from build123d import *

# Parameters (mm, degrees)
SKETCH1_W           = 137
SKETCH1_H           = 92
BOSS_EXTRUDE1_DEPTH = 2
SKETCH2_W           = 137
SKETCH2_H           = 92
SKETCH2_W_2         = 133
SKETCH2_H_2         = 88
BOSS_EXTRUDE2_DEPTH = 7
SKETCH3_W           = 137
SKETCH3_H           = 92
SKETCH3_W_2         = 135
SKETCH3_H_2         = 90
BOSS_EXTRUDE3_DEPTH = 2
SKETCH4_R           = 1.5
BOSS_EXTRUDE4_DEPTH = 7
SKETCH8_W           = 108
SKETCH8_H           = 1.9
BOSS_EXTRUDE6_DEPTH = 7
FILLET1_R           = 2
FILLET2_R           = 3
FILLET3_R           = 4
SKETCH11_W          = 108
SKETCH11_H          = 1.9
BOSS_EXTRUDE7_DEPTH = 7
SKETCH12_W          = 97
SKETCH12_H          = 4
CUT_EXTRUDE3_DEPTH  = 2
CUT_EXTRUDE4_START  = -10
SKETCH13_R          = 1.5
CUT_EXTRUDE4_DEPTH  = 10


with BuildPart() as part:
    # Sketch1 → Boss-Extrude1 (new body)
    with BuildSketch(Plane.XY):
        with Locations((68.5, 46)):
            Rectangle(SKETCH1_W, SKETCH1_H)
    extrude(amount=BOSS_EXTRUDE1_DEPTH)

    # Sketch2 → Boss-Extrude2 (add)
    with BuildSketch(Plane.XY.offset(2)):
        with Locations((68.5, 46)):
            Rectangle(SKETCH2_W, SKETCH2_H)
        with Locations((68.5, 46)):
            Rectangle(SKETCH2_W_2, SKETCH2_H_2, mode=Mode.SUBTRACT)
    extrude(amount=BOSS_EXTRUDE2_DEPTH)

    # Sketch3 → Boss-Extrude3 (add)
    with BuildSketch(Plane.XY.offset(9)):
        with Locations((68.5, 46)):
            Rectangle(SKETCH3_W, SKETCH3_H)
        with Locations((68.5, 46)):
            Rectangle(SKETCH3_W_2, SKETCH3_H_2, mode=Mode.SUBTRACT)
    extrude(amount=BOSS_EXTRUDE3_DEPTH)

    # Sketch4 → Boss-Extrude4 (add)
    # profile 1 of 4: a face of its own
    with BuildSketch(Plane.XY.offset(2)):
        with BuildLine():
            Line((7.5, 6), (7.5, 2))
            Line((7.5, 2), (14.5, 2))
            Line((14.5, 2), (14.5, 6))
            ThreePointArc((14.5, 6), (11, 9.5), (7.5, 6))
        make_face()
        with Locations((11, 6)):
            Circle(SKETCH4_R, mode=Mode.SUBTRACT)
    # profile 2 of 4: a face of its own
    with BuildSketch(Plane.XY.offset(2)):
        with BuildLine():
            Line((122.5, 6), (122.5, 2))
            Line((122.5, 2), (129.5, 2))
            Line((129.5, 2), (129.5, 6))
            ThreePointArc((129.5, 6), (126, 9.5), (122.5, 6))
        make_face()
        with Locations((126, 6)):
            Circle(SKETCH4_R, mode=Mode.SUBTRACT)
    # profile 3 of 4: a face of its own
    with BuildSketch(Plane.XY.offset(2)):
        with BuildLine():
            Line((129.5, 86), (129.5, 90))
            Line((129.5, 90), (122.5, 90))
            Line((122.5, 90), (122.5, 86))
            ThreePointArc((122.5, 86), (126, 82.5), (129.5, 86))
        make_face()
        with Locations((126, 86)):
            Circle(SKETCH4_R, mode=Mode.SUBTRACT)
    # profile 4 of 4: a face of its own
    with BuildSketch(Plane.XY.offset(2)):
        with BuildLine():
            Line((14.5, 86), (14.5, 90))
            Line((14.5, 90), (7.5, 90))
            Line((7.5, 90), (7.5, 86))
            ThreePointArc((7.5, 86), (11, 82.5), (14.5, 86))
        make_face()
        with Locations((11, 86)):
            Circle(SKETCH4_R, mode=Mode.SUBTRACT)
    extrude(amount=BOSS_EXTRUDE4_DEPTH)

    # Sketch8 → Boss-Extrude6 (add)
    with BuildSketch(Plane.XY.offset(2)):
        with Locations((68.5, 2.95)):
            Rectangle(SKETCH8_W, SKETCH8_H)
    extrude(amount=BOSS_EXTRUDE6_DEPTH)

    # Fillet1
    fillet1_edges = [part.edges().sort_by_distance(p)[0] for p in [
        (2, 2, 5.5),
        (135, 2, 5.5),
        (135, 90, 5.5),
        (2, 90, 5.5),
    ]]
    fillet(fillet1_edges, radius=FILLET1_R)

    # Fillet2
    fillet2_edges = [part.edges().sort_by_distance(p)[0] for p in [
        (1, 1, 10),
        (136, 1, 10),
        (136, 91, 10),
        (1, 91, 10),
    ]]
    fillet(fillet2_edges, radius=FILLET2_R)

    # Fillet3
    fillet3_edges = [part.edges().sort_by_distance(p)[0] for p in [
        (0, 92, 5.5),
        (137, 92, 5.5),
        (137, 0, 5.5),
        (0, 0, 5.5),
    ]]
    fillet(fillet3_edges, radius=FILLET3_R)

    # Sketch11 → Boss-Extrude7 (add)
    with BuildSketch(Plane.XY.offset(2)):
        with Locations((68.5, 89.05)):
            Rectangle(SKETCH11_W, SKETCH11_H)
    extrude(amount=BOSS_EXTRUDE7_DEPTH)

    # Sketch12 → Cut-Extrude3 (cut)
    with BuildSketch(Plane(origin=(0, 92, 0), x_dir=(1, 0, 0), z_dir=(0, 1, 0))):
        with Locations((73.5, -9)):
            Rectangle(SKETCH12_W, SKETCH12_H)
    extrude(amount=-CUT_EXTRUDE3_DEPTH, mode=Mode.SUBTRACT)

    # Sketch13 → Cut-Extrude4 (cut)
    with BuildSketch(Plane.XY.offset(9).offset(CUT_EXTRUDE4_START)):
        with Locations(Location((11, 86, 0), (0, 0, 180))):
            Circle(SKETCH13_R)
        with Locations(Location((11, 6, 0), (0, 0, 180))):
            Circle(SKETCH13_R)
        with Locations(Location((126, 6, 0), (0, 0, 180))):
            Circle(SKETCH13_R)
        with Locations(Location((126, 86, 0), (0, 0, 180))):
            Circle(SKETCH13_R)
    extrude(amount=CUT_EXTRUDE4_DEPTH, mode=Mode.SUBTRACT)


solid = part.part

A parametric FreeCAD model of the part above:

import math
import FreeCAD as App
import Part
import Sketcher


def edges_at(feature, points):
    """Names of the edges that pass closest to the given points."""
    edges = feature.Shape.Edges
    near = lambda p: min(range(len(edges)), key=lambda i: edges[i].distToShape(Part.Vertex(*p))[0])
    return sorted({f"Edge{near(p) + 1}" for p in points})


def add_polygon(sketch, points):
    """Adds a closed chain of lines whose ends are joined by coincident constraints."""
    first, n = sketch.GeometryCount, len(points)
    for a, b in zip(points, points[1:] + points[:1]):
        sketch.addGeometry(Part.LineSegment(App.Vector(*a, 0), App.Vector(*b, 0)), False)
    for i in range(n):
        sketch.addConstraint(Sketcher.Constraint("Coincident", first + i, 2, first + (i + 1) % n, 1))

doc = App.newDocument("Part")
body = doc.addObject("PartDesign::Body", "Body")

sketch1 = body.newObject("Sketcher::SketchObject", "Sketch")
sketch1.AttachmentSupport = (doc.getObject("XY_Plane"), [""])
sketch1.MapMode = "FlatFace"
add_polygon(sketch1, [(0, 92), (0, 0), (137, 0), (137, 92)])
sketch1.addConstraint([
    Sketcher.Constraint("Vertical", 0),
    Sketcher.Constraint("Horizontal", 1),
    Sketcher.Constraint("Vertical", 2),
    Sketcher.Constraint("Horizontal", 3),
    Sketcher.Constraint("Coincident", 0, 2, -1, 1),
    Sketcher.Constraint("DistanceX", 1, 1, 1, 2, 137.0),
    Sketcher.Constraint("DistanceY", 0, 2, 0, 1, 92.0),
])
pad1 = body.newObject("PartDesign::Pad", "Pad")
pad1.Profile = sketch1
pad1.Length = 2

sketch2 = body.newObject("Sketcher::SketchObject", "Sketch001")
sketch2.AttachmentSupport = (doc.getObject("XY_Plane"), [""])
sketch2.MapMode = "FlatFace"
sketch2.AttachmentOffset = App.Placement(App.Vector(0, 0, 2), App.Rotation())
add_polygon(sketch2, [(0, 92), (0, 0), (137, 0), (137, 92)])
add_polygon(sketch2, [(135, 2), (2, 2), (2, 90), (135, 90)])
sketch2.addConstraint([
    Sketcher.Constraint("Vertical", 0),
    Sketcher.Constraint("Horizontal", 1),
    Sketcher.Constraint("Vertical", 2),
    Sketcher.Constraint("Horizontal", 3),
    Sketcher.Constraint("Horizontal", 4),
    Sketcher.Constraint("Vertical", 5),
    Sketcher.Constraint("Horizontal", 6),
    Sketcher.Constraint("Vertical", 7),
    Sketcher.Constraint("Coincident", 0, 2, -1, 1),
    Sketcher.Constraint("DistanceX", 1, 1, 1, 2, 137.0),
    Sketcher.Constraint("DistanceX", 4, 2, 4, 1, 133.0),
    Sketcher.Constraint("DistanceY", 0, 2, 0, 1, 92.0),
    Sketcher.Constraint("DistanceY", 5, 1, 5, 2, 88.0),
    Sketcher.Constraint("DistanceX", -1, 1, 4, 2, 2.0),
    Sketcher.Constraint("DistanceY", -1, 1, 4, 2, 2.0),
])
pad2 = body.newObject("PartDesign::Pad", "Pad001")
pad2.Profile = sketch2
pad2.Length = 7

sketch3 = body.newObject("Sketcher::SketchObject", "Sketch002")
sketch3.AttachmentSupport = (doc.getObject("XY_Plane"), [""])
sketch3.MapMode = "FlatFace"
sketch3.AttachmentOffset = App.Placement(App.Vector(0, 0, 9), App.Rotation())
add_polygon(sketch3, [(0, 92), (0, 0), (137, 0), (137, 92)])
add_polygon(sketch3, [(136, 1), (1, 1), (1, 91), (136, 91)])
sketch3.addConstraint([
    Sketcher.Constraint("Vertical", 0),
    Sketcher.Constraint("Horizontal", 1),
    Sketcher.Constraint("Vertical", 2),
    Sketcher.Constraint("Horizontal", 3),
    Sketcher.Constraint("Horizontal", 4),
    Sketcher.Constraint("Vertical", 5),
    Sketcher.Constraint("Horizontal", 6),
    Sketcher.Constraint("Vertical", 7),
    Sketcher.Constraint("Coincident", 0, 2, -1, 1),
    Sketcher.Constraint("DistanceX", 1, 1, 1, 2, 137.0),
    Sketcher.Constraint("DistanceX", 4, 2, 4, 1, 135.0),
    Sketcher.Constraint("DistanceY", 0, 2, 0, 1, 92.0),
    Sketcher.Constraint("DistanceY", 5, 1, 5, 2, 90.0),
    Sketcher.Constraint("DistanceX", -1, 1, 4, 2, 1.0),
    Sketcher.Constraint("DistanceY", -1, 1, 4, 2, 1.0),
])
pad3 = body.newObject("PartDesign::Pad", "Pad002")
pad3.Profile = sketch3
pad3.Length = 2

sketch4 = body.newObject("Sketcher::SketchObject", "Sketch003")
sketch4.AttachmentSupport = (doc.getObject("XY_Plane"), [""])
sketch4.MapMode = "FlatFace"
sketch4.AttachmentOffset = App.Placement(App.Vector(0, 0, 2), App.Rotation())
sketch4.addGeometry([
    Part.LineSegment(App.Vector(7.5, 6, 0), App.Vector(7.5, 2, 0)),
    Part.LineSegment(App.Vector(7.5, 2, 0), App.Vector(14.5, 2, 0)),
    Part.LineSegment(App.Vector(14.5, 2, 0), App.Vector(14.5, 6, 0)),
    Part.ArcOfCircle(Part.Circle(App.Vector(11, 6, 0), App.Vector(0, 0, 1), 3.5), math.radians(0), math.radians(180)),
    Part.Circle(App.Vector(11, 6, 0), App.Vector(0, 0, 1), 1.5),
    Part.LineSegment(App.Vector(122.5, 6, 0), App.Vector(122.5, 2, 0)),
    Part.LineSegment(App.Vector(122.5, 2, 0), App.Vector(129.5, 2, 0)),
    Part.LineSegment(App.Vector(129.5, 2, 0), App.Vector(129.5, 6, 0)),
    Part.ArcOfCircle(Part.Circle(App.Vector(126, 6, 0), App.Vector(0, 0, 1), 3.5), math.radians(0), math.radians(180)),
    Part.Circle(App.Vector(126, 6, 0), App.Vector(0, 0, 1), 1.5),
    Part.LineSegment(App.Vector(129.5, 86, 0), App.Vector(129.5, 90, 0)),
    Part.LineSegment(App.Vector(129.5, 90, 0), App.Vector(122.5, 90, 0)),
    Part.LineSegment(App.Vector(122.5, 90, 0), App.Vector(122.5, 86, 0)),
    Part.ArcOfCircle(Part.Circle(App.Vector(126, 86, 0), App.Vector(0, 0, 1), 3.5), math.radians(180), math.radians(360)),
    Part.Circle(App.Vector(126, 86, 0), App.Vector(0, 0, 1), 1.5),
    Part.LineSegment(App.Vector(14.5, 86, 0), App.Vector(14.5, 90, 0)),
    Part.LineSegment(App.Vector(14.5, 90, 0), App.Vector(7.5, 90, 0)),
    Part.LineSegment(App.Vector(7.5, 90, 0), App.Vector(7.5, 86, 0)),
    Part.ArcOfCircle(Part.Circle(App.Vector(11, 86, 0), App.Vector(0, 0, 1), 3.5), math.radians(180), math.radians(360)),
    Part.Circle(App.Vector(11, 86, 0), App.Vector(0, 0, 1), 1.5),
], False)
sketch4.addConstraint([
    Sketcher.Constraint("Coincident", 0, 2, 1, 1),
    Sketcher.Constraint("Coincident", 1, 2, 2, 1),
    Sketcher.Constraint("Tangent", 2, 2, 3, 1),
    Sketcher.Constraint("Tangent", 3, 2, 0, 1),
    Sketcher.Constraint("Coincident", 5, 2, 6, 1),
    Sketcher.Constraint("Coincident", 6, 2, 7, 1),
    Sketcher.Constraint("Tangent", 7, 2, 8, 1),
    Sketcher.Constraint("Tangent", 8, 2, 5, 1),
    Sketcher.Constraint("Coincident", 10, 2, 11, 1),
    Sketcher.Constraint("Coincident", 11, 2, 12, 1),
    Sketcher.Constraint("Tangent", 12, 2, 13, 1),
    Sketcher.Constraint("Tangent", 13, 2, 10, 1),
    Sketcher.Constraint("Coincident", 15, 2, 16, 1),
    Sketcher.Constraint("Coincident", 16, 2, 17, 1),
    Sketcher.Constraint("Tangent", 17, 2, 18, 1),
    Sketcher.Constraint("Tangent", 18, 2, 15, 1),
    Sketcher.Constraint("Vertical", 0),
    Sketcher.Constraint("Horizontal", 1),
    Sketcher.Constraint("Vertical", 2),
    Sketcher.Constraint("Vertical", 5),
    Sketcher.Constraint("Horizontal", 6),
    Sketcher.Constraint("Vertical", 7),
    Sketcher.Constraint("Vertical", 10),
    Sketcher.Constraint("Horizontal", 11),
    Sketcher.Constraint("Vertical", 12),
    Sketcher.Constraint("Vertical", 15),
    Sketcher.Constraint("Horizontal", 16),
    Sketcher.Constraint("Vertical", 17),
    Sketcher.Constraint("Coincident", 4, 3, 3, 3),
    Sketcher.Constraint("Coincident", 9, 3, 8, 3),
    Sketcher.Constraint("Coincident", 14, 3, 13, 3),
    Sketcher.Constraint("Coincident", 19, 3, 18, 3),
    Sketcher.Constraint("Equal", 3, 8),
    Sketcher.Constraint("Equal", 4, 9),
    Sketcher.Constraint("Equal", 8, 13),
    Sketcher.Constraint("Equal", 9, 14),
    Sketcher.Constraint("Equal", 13, 18),
    Sketcher.Constraint("Equal", 14, 19),
    Sketcher.Constraint("Horizontal", 4, 3, 8, 3),
    Sketcher.Constraint("Horizontal", 14, 3, 18, 3),
    Sketcher.Constraint("Horizontal", 1, 2, 5, 2),
    Sketcher.Constraint("Horizontal", 11, 2, 15, 2),
    Sketcher.Constraint("Vertical", 9, 3, 13, 3),
    Sketcher.Constraint("Vertical", 4, 3, 18, 3),
    Sketcher.Constraint("Equal", 7, 10),
    Sketcher.Constraint("Diameter", 4, 3.0),
    Sketcher.Constraint("Radius", 3, 3.5),
    Sketcher.Constraint("DistanceY", 0, 2, 0, 1, 4.0),
    Sketcher.Constraint("DistanceX", -1, 1, 3, 3, 11.0),
    Sketcher.Constraint("DistanceY", -1, 1, 3, 3, 6.0),
    Sketcher.Constraint("DistanceX", -1, 1, 8, 3, 126.0),
    Sketcher.Constraint("DistanceY", -1, 1, 13, 3, 86.0),
])
pad4 = body.newObject("PartDesign::Pad", "Pad003")
pad4.Profile = sketch4
pad4.Length = 7

sketch5 = body.newObject("Sketcher::SketchObject", "Sketch004")
sketch5.AttachmentSupport = (doc.getObject("XY_Plane"), [""])
sketch5.MapMode = "FlatFace"
sketch5.AttachmentOffset = App.Placement(App.Vector(0, 0, 2), App.Rotation())
add_polygon(sketch5, [(14.5, 3.9), (14.5, 2), (122.5, 2), (122.5, 3.9)])
sketch5.addConstraint([
    Sketcher.Constraint("Vertical", 0),
    Sketcher.Constraint("Horizontal", 1),
    Sketcher.Constraint("Vertical", 2),
    Sketcher.Constraint("Horizontal", 3),
    Sketcher.Constraint("DistanceX", 1, 1, 1, 2, 108.0),
    Sketcher.Constraint("DistanceY", 0, 2, 0, 1, 1.9),
    Sketcher.Constraint("DistanceY", -1, 1, 0, 2, 2.0),
    Sketcher.Constraint("DistanceX", -1, 1, 0, 2, 14.5),
])
pad5 = body.newObject("PartDesign::Pad", "Pad004")
pad5.Profile = sketch5
pad5.Length = 7
doc.recompute()

fillet = body.newObject("PartDesign::Fillet", "Fillet")
fillet.Base = (pad5, edges_at(pad5, [
    (2, 2, 5.5),
    (135, 2, 5.5),
    (135, 90, 5.5),
    (2, 90, 5.5),
]))
fillet.Radius = 2
doc.recompute()

fillet2 = body.newObject("PartDesign::Fillet", "Fillet001")
fillet2.Base = (fillet, edges_at(fillet, [
    (1, 1, 10),
    (136, 1, 10),
    (136, 91, 10),
    (1, 91, 10),
]))
fillet2.Radius = 3
doc.recompute()

fillet3 = body.newObject("PartDesign::Fillet", "Fillet002")
fillet3.Base = (fillet2, edges_at(fillet2, [
    (0, 92, 5.5),
    (137, 92, 5.5),
    (137, 0, 5.5),
    (0, 0, 5.5),
]))
fillet3.Radius = 4

sketch6 = body.newObject("Sketcher::SketchObject", "Sketch005")
sketch6.AttachmentSupport = (doc.getObject("XY_Plane"), [""])
sketch6.MapMode = "FlatFace"
sketch6.AttachmentOffset = App.Placement(App.Vector(0, 0, 2), App.Rotation())
add_polygon(sketch6, [(14.5, 90), (14.5, 88.1), (122.5, 88.1), (122.5, 90)])
sketch6.addConstraint([
    Sketcher.Constraint("Vertical", 0),
    Sketcher.Constraint("Horizontal", 1),
    Sketcher.Constraint("Vertical", 2),
    Sketcher.Constraint("Horizontal", 3),
    Sketcher.Constraint("DistanceX", 1, 1, 1, 2, 108.0),
    Sketcher.Constraint("DistanceY", 0, 2, 0, 1, 1.9),
    Sketcher.Constraint("DistanceY", -1, 1, 2, 2, 90.0),
    Sketcher.Constraint("DistanceX", -1, 1, 0, 2, 14.5),
])
pad6 = body.newObject("PartDesign::Pad", "Pad005")
pad6.Profile = sketch6
pad6.Length = 7

sketch7 = body.newObject("Sketcher::SketchObject", "Sketch006")
sketch7.AttachmentSupport = (doc.getObject("XZ_Plane"), [""])
sketch7.MapMode = "FlatFace"
sketch7.AttachmentOffset = App.Placement(App.Vector(0, 0, -92), App.Rotation())
add_polygon(sketch7, [(25, 7), (25, 11), (122, 11), (122, 7)])
sketch7.addConstraint([
    Sketcher.Constraint("Vertical", 0),
    Sketcher.Constraint("Horizontal", 1),
    Sketcher.Constraint("Vertical", 2),
    Sketcher.Constraint("Horizontal", 3),
    Sketcher.Constraint("DistanceX", 1, 1, 1, 2, 97.0),
    Sketcher.Constraint("DistanceY", 0, 1, 0, 2, 4.0),
    Sketcher.Constraint("DistanceX", -1, 1, 0, 2, 25.0),
    Sketcher.Constraint("DistanceY", -1, 1, 0, 2, 11.0),
])
pocket1 = body.newObject("PartDesign::Pocket", "Pocket")
pocket1.Profile = sketch7
pocket1.Length = 2
pocket1.Reversed = True

sketch8 = body.newObject("Sketcher::SketchObject", "Sketch007")
sketch8.AttachmentSupport = (doc.getObject("XY_Plane"), [""])
sketch8.MapMode = "FlatFace"
sketch8.AttachmentOffset = App.Placement(App.Vector(0, 0, -1), App.Rotation())
sketch8.addGeometry([
    Part.Circle(App.Vector(11, 86, 0), App.Vector(0, 0, 1), 1.5),
    Part.Circle(App.Vector(11, 6, 0), App.Vector(0, 0, 1), 1.5),
    Part.Circle(App.Vector(126, 6, 0), App.Vector(0, 0, 1), 1.5),
    Part.Circle(App.Vector(126, 86, 0), App.Vector(0, 0, 1), 1.5),
], False)
sketch8.addConstraint([
    Sketcher.Constraint("Equal", 0, 1),
    Sketcher.Constraint("Equal", 1, 2),
    Sketcher.Constraint("Equal", 2, 3),
    Sketcher.Constraint("Horizontal", 1, 3, 2, 3),
    Sketcher.Constraint("Horizontal", 0, 3, 3, 3),
    Sketcher.Constraint("Vertical", 0, 3, 1, 3),
    Sketcher.Constraint("Vertical", 2, 3, 3, 3),
    Sketcher.Constraint("Diameter", 0, 3.0),
    Sketcher.Constraint("DistanceX", -1, 1, 0, 3, 11.0),
    Sketcher.Constraint("DistanceY", -1, 1, 0, 3, 86.0),
    Sketcher.Constraint("DistanceY", -1, 1, 1, 3, 6.0),
    Sketcher.Constraint("DistanceX", -1, 1, 2, 3, 126.0),
])
pocket2 = body.newObject("PartDesign::Pocket", "Pocket001")
pocket2.Profile = sketch8
pocket2.Length = 10
pocket2.Reversed = True

doc.recompute()
